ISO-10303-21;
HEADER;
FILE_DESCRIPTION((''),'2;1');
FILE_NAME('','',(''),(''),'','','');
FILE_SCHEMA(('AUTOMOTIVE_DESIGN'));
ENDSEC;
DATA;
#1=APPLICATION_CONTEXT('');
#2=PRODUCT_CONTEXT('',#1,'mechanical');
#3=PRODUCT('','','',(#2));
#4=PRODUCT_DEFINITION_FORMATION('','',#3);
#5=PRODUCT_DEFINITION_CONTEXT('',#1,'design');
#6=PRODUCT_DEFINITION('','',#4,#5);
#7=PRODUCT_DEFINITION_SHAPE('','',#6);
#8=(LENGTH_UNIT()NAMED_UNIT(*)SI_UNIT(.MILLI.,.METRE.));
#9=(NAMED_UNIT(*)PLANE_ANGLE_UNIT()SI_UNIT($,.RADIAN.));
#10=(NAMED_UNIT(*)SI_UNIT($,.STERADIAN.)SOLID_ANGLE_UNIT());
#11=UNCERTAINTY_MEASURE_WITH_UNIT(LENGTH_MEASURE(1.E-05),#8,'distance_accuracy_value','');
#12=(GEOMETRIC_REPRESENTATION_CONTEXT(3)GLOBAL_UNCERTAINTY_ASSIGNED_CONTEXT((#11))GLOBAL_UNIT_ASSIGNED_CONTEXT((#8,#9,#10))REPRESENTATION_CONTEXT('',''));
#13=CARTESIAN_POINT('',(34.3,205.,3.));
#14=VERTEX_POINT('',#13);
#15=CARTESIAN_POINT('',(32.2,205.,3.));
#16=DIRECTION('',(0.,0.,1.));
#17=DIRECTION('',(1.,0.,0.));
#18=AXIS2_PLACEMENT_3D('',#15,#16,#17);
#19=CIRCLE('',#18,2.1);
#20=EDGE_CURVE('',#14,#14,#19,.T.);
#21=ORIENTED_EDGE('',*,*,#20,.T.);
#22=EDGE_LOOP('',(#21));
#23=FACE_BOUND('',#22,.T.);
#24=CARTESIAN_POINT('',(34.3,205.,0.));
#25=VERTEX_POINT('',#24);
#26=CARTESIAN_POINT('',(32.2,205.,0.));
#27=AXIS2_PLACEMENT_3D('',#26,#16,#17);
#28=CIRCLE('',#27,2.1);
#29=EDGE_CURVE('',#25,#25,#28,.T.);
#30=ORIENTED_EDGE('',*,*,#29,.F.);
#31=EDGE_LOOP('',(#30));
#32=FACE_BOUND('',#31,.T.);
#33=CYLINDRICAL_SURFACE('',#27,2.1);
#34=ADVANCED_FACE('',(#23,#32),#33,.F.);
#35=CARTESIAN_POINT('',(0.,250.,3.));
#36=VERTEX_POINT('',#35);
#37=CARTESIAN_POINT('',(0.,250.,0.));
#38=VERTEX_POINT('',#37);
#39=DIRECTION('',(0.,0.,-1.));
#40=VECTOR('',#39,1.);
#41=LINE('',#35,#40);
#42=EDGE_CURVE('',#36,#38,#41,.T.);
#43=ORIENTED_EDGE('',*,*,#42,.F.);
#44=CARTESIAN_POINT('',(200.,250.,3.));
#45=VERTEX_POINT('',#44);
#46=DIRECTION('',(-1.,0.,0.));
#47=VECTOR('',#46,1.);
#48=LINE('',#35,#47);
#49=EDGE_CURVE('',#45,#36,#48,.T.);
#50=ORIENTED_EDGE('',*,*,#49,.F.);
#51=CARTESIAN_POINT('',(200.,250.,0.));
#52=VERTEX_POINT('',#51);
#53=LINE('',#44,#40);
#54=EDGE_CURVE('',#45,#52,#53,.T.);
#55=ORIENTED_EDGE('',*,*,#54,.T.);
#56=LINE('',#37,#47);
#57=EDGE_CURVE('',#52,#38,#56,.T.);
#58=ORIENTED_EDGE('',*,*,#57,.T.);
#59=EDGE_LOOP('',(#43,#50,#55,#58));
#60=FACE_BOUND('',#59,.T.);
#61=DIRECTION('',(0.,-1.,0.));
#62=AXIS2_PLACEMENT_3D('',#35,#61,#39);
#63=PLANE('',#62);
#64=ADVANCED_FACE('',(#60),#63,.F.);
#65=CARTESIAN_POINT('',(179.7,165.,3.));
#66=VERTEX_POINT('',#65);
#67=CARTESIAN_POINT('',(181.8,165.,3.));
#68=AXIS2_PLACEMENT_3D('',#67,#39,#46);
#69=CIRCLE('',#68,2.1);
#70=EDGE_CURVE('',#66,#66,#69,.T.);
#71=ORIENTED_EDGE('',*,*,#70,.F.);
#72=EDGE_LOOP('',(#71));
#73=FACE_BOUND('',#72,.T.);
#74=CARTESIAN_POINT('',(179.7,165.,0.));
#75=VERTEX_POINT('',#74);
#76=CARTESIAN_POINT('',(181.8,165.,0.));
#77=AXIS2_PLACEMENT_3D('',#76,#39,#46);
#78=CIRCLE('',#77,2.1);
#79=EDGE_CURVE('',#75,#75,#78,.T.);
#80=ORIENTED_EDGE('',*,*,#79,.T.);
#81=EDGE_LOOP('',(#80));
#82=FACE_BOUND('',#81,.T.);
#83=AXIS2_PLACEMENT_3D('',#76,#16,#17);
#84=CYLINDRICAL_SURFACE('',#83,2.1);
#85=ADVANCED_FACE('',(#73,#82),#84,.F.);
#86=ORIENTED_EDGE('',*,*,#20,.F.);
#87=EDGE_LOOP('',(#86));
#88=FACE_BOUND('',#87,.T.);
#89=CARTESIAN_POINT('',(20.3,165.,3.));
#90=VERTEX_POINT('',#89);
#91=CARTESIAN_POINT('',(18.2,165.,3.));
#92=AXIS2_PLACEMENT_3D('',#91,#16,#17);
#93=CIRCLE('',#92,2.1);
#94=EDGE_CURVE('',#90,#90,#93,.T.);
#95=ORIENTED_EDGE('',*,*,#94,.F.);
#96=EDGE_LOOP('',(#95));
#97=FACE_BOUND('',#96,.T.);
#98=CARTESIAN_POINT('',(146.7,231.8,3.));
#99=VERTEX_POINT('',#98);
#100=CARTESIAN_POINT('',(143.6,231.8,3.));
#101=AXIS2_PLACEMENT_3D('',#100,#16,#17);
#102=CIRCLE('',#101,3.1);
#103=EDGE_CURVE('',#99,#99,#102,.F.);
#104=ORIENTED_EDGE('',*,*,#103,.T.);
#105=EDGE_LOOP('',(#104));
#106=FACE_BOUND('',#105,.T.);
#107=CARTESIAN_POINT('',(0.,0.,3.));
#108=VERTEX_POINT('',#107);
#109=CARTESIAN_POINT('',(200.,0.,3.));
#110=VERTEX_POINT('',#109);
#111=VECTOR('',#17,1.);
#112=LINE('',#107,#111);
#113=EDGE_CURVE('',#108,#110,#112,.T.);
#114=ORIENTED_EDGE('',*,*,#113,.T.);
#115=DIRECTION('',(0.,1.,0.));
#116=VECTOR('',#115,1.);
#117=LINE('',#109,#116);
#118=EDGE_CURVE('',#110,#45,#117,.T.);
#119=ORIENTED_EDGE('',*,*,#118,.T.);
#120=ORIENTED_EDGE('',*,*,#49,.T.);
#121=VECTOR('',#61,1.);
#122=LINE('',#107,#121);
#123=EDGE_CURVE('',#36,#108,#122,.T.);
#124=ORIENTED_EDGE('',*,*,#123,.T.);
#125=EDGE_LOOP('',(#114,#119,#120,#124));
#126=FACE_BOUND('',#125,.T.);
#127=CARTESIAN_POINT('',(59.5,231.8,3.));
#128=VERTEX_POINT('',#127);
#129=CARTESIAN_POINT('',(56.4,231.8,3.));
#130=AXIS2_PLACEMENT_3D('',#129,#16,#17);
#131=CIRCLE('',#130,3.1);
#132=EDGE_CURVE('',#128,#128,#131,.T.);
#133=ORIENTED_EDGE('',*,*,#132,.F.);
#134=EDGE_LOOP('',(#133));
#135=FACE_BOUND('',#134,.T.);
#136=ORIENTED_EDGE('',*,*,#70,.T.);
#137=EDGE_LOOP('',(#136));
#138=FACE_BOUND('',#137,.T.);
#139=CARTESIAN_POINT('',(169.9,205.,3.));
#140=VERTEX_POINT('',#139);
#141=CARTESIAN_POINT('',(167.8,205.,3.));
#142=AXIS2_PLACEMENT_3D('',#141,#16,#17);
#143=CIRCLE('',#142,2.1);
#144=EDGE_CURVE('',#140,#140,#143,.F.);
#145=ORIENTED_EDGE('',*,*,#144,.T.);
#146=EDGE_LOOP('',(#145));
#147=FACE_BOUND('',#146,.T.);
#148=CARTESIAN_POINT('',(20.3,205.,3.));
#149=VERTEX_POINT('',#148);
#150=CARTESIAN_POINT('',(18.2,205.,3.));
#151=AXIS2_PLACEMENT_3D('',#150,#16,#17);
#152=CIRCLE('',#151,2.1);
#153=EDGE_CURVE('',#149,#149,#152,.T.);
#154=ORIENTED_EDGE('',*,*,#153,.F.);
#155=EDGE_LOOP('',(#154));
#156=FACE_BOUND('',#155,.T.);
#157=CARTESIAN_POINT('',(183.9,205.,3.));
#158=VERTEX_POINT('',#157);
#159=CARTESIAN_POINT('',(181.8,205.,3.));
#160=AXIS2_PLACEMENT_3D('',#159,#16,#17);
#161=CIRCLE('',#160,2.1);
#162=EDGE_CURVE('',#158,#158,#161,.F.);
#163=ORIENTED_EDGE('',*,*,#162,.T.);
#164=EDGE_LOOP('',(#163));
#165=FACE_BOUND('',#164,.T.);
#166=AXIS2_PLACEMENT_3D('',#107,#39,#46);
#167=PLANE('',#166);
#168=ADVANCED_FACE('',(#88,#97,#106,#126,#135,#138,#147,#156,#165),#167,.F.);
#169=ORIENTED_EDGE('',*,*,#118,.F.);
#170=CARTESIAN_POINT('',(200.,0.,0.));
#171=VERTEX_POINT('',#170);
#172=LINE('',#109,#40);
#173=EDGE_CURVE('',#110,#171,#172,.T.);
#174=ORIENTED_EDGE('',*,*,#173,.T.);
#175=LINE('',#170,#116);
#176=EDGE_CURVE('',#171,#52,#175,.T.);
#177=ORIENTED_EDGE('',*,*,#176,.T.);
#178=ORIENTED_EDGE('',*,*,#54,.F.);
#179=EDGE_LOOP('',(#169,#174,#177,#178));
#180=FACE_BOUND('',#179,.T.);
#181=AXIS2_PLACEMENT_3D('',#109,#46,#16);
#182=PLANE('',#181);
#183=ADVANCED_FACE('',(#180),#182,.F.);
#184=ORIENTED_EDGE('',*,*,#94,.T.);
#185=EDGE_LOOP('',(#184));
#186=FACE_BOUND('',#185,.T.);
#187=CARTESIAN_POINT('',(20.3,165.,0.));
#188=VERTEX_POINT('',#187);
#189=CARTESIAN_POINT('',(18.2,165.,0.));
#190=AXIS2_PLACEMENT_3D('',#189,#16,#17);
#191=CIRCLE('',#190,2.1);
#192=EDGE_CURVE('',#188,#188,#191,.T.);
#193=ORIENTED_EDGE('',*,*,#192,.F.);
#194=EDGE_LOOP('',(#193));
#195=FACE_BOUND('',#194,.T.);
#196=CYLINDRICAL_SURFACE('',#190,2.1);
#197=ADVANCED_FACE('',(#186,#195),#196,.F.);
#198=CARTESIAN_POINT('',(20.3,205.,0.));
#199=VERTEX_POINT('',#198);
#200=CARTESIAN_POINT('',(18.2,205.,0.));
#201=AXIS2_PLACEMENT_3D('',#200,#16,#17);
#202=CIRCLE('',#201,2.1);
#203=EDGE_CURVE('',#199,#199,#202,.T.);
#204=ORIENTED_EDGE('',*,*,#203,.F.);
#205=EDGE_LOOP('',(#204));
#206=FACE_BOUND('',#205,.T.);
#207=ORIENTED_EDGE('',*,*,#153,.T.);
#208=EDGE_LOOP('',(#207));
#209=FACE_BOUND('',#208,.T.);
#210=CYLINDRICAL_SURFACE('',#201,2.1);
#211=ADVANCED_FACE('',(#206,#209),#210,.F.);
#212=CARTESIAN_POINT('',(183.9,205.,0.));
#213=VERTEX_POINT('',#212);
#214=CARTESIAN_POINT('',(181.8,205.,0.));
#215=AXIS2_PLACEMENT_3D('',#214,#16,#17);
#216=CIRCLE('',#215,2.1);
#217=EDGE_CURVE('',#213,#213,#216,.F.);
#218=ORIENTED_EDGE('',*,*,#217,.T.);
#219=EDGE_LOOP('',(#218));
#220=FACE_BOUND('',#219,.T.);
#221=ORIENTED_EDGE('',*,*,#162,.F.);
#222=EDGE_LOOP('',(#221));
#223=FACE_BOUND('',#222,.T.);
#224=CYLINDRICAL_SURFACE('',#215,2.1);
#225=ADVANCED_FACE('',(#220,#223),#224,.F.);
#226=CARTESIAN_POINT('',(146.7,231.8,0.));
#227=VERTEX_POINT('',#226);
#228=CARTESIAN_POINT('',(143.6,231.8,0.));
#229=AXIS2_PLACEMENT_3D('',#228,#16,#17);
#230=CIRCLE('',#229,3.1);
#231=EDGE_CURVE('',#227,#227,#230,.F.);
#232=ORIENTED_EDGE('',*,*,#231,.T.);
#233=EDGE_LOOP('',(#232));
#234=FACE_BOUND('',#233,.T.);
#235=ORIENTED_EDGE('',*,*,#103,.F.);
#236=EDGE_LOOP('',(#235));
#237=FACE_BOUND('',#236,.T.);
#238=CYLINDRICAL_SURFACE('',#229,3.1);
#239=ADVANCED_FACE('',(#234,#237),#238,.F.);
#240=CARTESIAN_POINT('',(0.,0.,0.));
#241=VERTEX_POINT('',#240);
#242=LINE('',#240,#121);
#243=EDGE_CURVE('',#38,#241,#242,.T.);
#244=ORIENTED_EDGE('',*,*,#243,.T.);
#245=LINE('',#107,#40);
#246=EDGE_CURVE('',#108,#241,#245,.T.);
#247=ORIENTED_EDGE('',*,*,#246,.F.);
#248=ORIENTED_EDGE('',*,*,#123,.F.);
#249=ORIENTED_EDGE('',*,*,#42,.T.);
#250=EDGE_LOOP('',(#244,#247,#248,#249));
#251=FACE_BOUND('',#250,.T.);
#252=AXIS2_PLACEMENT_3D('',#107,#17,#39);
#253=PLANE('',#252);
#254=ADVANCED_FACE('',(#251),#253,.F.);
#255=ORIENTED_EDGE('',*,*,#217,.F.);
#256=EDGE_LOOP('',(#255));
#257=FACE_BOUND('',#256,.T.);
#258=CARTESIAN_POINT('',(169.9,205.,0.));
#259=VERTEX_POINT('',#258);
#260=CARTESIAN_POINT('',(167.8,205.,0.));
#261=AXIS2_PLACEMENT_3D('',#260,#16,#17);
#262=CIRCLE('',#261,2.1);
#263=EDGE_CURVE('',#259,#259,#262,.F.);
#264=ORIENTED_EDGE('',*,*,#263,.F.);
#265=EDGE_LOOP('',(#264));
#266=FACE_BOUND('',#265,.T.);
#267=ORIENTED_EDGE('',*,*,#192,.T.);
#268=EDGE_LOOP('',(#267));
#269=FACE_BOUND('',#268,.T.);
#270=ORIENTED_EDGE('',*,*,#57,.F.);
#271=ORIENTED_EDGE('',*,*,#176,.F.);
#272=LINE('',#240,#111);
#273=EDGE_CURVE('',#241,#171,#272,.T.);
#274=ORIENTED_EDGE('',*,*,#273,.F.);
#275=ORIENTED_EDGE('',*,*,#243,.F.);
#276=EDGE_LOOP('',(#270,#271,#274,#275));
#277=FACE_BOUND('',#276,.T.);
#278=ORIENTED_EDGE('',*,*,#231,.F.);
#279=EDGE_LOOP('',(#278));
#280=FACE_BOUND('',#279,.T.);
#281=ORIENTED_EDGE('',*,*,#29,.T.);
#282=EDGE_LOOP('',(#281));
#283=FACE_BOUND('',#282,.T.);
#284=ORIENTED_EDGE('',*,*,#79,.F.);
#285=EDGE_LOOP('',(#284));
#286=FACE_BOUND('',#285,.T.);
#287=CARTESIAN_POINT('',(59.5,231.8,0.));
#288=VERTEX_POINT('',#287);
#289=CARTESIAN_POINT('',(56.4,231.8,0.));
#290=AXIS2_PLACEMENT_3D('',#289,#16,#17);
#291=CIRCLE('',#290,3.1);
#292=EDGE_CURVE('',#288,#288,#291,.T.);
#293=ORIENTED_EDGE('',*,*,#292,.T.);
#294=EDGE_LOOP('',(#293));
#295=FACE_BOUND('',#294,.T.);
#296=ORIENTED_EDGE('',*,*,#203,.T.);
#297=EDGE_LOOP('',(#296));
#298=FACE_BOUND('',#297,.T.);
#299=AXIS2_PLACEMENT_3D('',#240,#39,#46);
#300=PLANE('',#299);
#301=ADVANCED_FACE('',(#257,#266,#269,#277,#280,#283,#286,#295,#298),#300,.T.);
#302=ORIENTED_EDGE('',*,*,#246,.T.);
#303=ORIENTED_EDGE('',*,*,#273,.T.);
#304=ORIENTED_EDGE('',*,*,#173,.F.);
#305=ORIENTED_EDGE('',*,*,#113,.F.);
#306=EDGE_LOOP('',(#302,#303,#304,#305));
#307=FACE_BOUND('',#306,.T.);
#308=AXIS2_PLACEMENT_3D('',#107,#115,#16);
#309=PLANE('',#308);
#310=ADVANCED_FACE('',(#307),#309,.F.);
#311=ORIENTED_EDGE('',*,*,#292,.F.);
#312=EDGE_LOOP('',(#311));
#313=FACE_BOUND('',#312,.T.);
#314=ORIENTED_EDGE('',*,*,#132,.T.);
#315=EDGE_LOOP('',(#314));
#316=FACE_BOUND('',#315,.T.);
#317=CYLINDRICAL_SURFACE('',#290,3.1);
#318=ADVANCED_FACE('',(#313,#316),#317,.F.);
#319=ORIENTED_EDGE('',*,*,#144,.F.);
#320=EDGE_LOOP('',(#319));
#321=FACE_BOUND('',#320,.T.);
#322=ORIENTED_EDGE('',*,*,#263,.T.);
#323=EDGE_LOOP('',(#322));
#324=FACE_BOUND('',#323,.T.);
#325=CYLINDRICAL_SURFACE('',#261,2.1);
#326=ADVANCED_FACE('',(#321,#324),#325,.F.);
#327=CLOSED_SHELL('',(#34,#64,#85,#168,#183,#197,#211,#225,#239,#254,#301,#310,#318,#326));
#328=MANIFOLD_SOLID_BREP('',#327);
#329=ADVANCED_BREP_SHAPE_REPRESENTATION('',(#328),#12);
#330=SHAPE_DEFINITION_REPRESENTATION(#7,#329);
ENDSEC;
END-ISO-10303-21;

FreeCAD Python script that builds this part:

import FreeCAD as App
import Part
import Sketcher
from FreeCAD import Vector

doc = App.newDocument("Part")
params = doc.addObject("Spreadsheet::Sheet", "Params")
for row, (alias, value) in enumerate([
    ("sketch1_width", "200 mm"),
    ("sketch1_height", "250 mm"),
    ("pad1_length", "3 mm"),
    ("sketch2_diameter", "4.2 mm"),
    ("sketch2_diameter2", "6.2 mm"),
], start=1):
    params.set(f"A{row}", alias)
    params.set(f"B{row}", "=" + value)
    params.setAlias(f"B{row}", alias)

body = doc.addObject("PartDesign::Body", "Body")

# Sketch on XY plane
sketch1 = body.newObject("Sketcher::SketchObject", "Sketch")
sketch1.AttachmentSupport = (doc.getObject("XY_Plane"), [""])
sketch1.MapMode = "FlatFace"
sketch1.addGeometry([
    Part.LineSegment(Vector(0, 250, 0), Vector(0, 0, 0)),
    Part.LineSegment(Vector(0, 0, 0), Vector(200, 0, 0)),
    Part.LineSegment(Vector(200, 0, 0), Vector(200, 250, 0)),
    Part.LineSegment(Vector(200, 250, 0), Vector(0, 250, 0)),
], False)
sketch1.addConstraint([
    Sketcher.Constraint("Coincident", 0, 2, 1, 1),
    Sketcher.Constraint("Coincident", 1, 2, 2, 1),
    Sketcher.Constraint("Coincident", 2, 2, 3, 1),
    Sketcher.Constraint("Coincident", 3, 2, 0, 1),
    Sketcher.Constraint("Vertical", 0),
    Sketcher.Constraint("Horizontal", 1),
    Sketcher.Constraint("Vertical", 2),
    Sketcher.Constraint("Horizontal", 3),
    Sketcher.Constraint("Coincident", 0, 2, -1, 1),
    Sketcher.Constraint("DistanceX", 1, 1, 1, 2, 200.0),
    Sketcher.Constraint("DistanceY", 0, 2, 0, 1, 250.0),
])
sketch1.setExpression("Constraints[9]", "Params.sketch1_width")
sketch1.setExpression("Constraints[10]", "Params.sketch1_height")
pad1 = body.newObject("PartDesign::Pad", "Pad")
pad1.Profile = sketch1
pad1.setExpression("Length", "Params.pad1_length")

# Sketch on XY plane
sketch2 = body.newObject("Sketcher::SketchObject", "Sketch001")
sketch2.AttachmentSupport = (doc.getObject("XY_Plane"), [""])
sketch2.MapMode = "FlatFace"
sketch2.AttachmentOffset = App.Placement(Vector(0, 0, 3), App.Rotation())
sketch2.addGeometry([
    Part.Circle(Vector(18.2, 165, 0), Vector(0, 0, 1), 2.1),  # 0
    Part.Circle(Vector(56.4, 231.8, 0), Vector(0, 0, 1), 3.1),  # 1
    Part.Circle(Vector(143.6, 231.8, 0), Vector(0, 0, 1), 3.1),  # 2
    Part.Circle(Vector(167.8, 205, 0), Vector(0, 0, 1), 2.1),  # 3
    Part.Circle(Vector(181.8, 205, 0), Vector(0, 0, 1), 2.1),  # 4
    Part.Circle(Vector(18.2, 205, 0), Vector(0, 0, 1), 2.1),  # 5
    Part.Circle(Vector(32.2, 205, 0), Vector(0, 0, 1), 2.1),  # 6
    Part.Circle(Vector(181.8, 165, 0), Vector(0, 0, 1), 2.1),  # 7
], False)
sketch2.addConstraint([
    Sketcher.Constraint("Equal", 1, 2),
    Sketcher.Constraint("Equal", 0, 3),
    Sketcher.Constraint("Equal", 3, 4),
    Sketcher.Constraint("Equal", 4, 5),
    Sketcher.Constraint("Equal", 5, 6),
    Sketcher.Constraint("Equal", 6, 7),
    Sketcher.Constraint("Horizontal", 1, 3, 2, 3),
    Sketcher.Constraint("Horizontal", 3, 3, 4, 3),
    Sketcher.Constraint("Horizontal", 4, 3, 5, 3),
    Sketcher.Constraint("Horizontal", 5, 3, 6, 3),
    Sketcher.Constraint("Horizontal", 0, 3, 7, 3),
    Sketcher.Constraint("Vertical", 0, 3, 5, 3),
    Sketcher.Constraint("Vertical", 4, 3, 7, 3),
    Sketcher.Constraint("Diameter", 0, 4.2),
    Sketcher.Constraint("Diameter", 1, 6.2),
    Sketcher.Constraint("DistanceY", -1, 1, 0, 3, 165.0),
    Sketcher.Constraint("DistanceY", -1, 1, 3, 3, 205.0),
    Sketcher.Constraint("DistanceX", 3, 3, 4, 3, 14.0),
    Sketcher.Constraint("DistanceX", 5, 3, 6, 3, 14.0),
    Sketcher.Constraint("DistanceX", -1, 1, 0, 3, 18.2),
    Sketcher.Constraint("DistanceX", -1, 1, 1, 3, 56.4),
    Sketcher.Constraint("DistanceY", -1, 1, 1, 3, 231.8),
    Sketcher.Constraint("DistanceX", -1, 1, 2, 3, 143.6),
    Sketcher.Constraint("DistanceX", -1, 1, 3, 3, 167.8),
])
sketch2.setExpression("Constraints[13]", "Params.sketch2_diameter")
sketch2.setExpression("Constraints[14]", "Params.sketch2_diameter2")
pocket1 = body.newObject("PartDesign::Pocket", "Pocket")
pocket1.Profile = sketch2
pocket1.Type = "ThroughAll"

doc.recompute()
